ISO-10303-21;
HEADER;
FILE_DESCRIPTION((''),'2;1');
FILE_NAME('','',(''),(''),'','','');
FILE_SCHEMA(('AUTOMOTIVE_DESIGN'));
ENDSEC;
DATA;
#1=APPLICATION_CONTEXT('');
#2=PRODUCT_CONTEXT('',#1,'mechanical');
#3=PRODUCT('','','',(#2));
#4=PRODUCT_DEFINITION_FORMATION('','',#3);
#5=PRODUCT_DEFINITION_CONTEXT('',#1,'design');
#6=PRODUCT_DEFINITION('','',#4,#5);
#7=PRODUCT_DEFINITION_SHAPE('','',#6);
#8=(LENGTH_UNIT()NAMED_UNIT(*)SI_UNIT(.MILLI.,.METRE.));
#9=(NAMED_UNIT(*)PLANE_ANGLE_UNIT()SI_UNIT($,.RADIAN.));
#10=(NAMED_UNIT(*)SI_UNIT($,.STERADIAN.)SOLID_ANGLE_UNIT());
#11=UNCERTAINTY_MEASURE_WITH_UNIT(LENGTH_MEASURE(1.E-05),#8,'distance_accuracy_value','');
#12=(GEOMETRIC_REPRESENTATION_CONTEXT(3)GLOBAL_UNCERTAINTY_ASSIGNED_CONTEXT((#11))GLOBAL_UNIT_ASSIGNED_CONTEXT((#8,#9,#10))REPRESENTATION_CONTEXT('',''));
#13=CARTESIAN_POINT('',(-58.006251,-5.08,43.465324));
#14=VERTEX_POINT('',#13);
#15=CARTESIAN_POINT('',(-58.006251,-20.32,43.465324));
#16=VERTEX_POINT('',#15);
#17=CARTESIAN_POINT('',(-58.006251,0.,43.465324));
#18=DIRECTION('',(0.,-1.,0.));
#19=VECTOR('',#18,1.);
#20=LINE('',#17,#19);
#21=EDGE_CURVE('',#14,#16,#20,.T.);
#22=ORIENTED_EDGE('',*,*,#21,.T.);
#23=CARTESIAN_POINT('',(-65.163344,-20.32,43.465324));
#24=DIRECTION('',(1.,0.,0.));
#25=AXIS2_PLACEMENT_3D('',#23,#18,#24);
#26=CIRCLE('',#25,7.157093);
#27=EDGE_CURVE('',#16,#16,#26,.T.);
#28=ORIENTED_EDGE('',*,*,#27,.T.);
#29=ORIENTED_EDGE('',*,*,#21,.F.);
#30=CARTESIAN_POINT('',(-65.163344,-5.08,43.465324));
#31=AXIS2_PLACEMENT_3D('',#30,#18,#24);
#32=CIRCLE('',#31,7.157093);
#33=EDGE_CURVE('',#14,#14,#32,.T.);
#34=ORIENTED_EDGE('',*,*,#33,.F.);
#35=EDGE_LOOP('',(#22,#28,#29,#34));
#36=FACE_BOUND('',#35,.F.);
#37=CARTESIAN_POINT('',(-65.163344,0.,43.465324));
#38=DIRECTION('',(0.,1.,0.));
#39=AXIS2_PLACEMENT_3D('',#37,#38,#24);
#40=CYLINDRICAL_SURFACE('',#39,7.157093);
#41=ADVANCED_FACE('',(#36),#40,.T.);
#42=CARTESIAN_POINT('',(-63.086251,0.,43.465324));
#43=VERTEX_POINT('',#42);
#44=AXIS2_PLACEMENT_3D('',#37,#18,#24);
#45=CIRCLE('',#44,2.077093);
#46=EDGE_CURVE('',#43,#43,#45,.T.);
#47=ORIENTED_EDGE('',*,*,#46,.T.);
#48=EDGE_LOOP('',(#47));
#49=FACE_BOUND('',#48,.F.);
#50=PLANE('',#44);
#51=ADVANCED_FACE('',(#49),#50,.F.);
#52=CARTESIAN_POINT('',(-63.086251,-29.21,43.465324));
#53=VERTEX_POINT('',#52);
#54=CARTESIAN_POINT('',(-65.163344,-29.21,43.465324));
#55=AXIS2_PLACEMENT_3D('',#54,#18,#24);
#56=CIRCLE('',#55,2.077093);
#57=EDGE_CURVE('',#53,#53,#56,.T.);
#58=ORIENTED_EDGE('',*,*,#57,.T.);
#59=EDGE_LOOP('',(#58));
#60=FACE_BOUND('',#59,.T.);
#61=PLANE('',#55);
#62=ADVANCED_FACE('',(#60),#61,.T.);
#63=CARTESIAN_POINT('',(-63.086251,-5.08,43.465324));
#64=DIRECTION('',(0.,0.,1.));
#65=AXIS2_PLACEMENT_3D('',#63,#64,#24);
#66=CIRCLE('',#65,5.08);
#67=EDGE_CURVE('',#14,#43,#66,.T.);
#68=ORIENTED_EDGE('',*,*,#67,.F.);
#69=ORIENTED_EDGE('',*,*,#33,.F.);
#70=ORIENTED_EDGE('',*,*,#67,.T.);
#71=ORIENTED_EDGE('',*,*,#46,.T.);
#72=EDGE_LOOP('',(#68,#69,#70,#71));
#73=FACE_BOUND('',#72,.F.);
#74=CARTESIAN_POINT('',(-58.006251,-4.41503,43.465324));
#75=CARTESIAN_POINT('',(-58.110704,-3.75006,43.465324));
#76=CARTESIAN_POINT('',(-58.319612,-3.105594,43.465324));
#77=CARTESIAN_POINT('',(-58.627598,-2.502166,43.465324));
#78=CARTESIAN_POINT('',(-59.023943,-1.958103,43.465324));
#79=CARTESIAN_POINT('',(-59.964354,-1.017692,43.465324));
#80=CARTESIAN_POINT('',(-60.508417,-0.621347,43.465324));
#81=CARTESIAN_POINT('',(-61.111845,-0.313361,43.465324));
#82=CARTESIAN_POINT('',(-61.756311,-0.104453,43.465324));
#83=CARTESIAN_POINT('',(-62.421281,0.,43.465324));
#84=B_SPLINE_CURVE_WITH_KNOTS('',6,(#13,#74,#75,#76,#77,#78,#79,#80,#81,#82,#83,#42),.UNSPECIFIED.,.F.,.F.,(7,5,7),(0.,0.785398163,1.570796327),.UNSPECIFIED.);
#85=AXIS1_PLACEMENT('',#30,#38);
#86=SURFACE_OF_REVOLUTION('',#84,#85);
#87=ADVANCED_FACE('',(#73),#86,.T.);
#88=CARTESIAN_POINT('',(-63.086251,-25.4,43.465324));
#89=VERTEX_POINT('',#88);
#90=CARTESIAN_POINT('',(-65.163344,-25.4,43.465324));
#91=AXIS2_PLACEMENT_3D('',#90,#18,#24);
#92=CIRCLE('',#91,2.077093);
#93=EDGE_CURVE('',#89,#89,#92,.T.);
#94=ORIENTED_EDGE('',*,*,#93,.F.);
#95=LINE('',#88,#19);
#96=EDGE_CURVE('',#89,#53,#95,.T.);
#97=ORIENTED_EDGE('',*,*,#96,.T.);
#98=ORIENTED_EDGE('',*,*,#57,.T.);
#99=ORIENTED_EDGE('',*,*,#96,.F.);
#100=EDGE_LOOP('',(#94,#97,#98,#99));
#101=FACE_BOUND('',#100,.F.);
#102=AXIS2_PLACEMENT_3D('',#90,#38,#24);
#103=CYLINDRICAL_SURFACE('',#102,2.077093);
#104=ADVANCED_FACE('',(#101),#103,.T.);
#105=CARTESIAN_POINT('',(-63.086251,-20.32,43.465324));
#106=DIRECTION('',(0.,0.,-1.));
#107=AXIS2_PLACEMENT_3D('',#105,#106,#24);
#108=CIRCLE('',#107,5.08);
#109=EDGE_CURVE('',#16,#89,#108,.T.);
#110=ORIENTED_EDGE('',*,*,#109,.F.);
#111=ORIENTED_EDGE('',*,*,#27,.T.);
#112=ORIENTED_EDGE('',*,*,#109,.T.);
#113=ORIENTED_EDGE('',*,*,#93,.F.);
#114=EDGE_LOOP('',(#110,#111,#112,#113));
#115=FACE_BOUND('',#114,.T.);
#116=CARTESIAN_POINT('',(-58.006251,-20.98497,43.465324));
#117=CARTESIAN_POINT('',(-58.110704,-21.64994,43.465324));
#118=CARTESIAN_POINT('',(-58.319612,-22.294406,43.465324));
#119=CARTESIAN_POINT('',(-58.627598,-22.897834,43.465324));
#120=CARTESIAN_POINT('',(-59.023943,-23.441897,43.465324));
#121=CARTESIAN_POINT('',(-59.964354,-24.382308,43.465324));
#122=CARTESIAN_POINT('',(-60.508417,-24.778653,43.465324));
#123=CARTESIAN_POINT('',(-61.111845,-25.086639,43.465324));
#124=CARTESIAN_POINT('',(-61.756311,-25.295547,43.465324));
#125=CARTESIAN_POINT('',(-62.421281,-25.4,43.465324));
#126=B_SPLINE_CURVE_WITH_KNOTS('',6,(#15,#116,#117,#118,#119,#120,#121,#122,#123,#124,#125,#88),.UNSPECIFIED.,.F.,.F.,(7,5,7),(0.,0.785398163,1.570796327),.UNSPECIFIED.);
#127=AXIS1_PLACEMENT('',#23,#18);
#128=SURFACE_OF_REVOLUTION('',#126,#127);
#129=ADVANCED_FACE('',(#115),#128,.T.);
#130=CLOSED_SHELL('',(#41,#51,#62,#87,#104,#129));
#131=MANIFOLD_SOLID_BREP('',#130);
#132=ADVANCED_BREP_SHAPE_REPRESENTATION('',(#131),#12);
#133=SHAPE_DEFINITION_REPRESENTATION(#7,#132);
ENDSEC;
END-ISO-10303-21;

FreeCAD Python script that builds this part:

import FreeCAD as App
import Part
import Sketcher
from FreeCAD import Vector
Q = App.Units.Quantity


def edges_at(feature, points):
    """Names of the edges that pass closest to the given points."""
    edges = feature.Shape.Edges
    near = lambda p: min(range(len(edges)), key=lambda i: edges[i].distToShape(Part.Vertex(*p))[0])
    return sorted({f"Edge{near(p) + 1}" for p in points})

doc = App.newDocument("Part")
body = doc.addObject("PartDesign::Body", "Body")

sketch1 = doc.addObject("Sketcher::SketchObject", "Sketch")
body.addObject(sketch1)
sketch1.AttachmentSupport = (doc.XZ_Plane, [""])
sketch1.MapMode = "FlatFace"
sketch1.addGeometry(Part.Circle(Vector(-65, 43, 0), Vector(0, 0, 1), 7), False)
sketch1.addConstraint([
    Sketcher.Constraint("Diameter", 0, Q("14.314186 mm")),
    Sketcher.Constraint("DistanceX", 0, 3, -1, 1, Q("65.163344 mm")),
    Sketcher.Constraint("DistanceY", -1, 1, 0, 3, Q("43.465324 mm")),
])
pad1 = doc.addObject("PartDesign::Pad", "Pad")
body.addObject(pad1)
pad1.Profile = sketch1
pad1.Length = Q("1 in")
doc.recompute()

fillet = doc.addObject("PartDesign::Fillet", "Fillet")
body.addObject(fillet)
fillet.Base = (pad1, edges_at(pad1, [(-72.32, -25.4, 43.465), (-72.32, 0, 43.465)]))
fillet.Radius = Q("0.2 in")

sketch2 = doc.addObject("Sketcher::SketchObject", "Sketch001")
body.addObject(sketch2)
sketch2.AttachmentSupport = (doc.XZ_Plane, [""])
sketch2.MapMode = "FlatFace"
sketch2.AttachmentOffset = App.Placement(Vector(0, 0, 1 * 25.4), App.Rotation())
sketch2.addGeometry(Part.Circle(Vector(-65.2, 43.5, 0), Vector(0, 0, 1), 2.1), False)
sketch2.addConstraint([
    Sketcher.Constraint("Diameter", 0, Q("4.154186 mm")),
    Sketcher.Constraint("DistanceX", 0, 3, -1, 1, Q("65.163344 mm")),
    Sketcher.Constraint("DistanceY", -1, 1, 0, 3, Q("43.465324 mm")),
])
pad2 = doc.addObject("PartDesign::Pad", "Pad001")
body.addObject(pad2)
pad2.Profile = sketch2
pad2.Length = Q("0.15 in")

doc.recompute()
